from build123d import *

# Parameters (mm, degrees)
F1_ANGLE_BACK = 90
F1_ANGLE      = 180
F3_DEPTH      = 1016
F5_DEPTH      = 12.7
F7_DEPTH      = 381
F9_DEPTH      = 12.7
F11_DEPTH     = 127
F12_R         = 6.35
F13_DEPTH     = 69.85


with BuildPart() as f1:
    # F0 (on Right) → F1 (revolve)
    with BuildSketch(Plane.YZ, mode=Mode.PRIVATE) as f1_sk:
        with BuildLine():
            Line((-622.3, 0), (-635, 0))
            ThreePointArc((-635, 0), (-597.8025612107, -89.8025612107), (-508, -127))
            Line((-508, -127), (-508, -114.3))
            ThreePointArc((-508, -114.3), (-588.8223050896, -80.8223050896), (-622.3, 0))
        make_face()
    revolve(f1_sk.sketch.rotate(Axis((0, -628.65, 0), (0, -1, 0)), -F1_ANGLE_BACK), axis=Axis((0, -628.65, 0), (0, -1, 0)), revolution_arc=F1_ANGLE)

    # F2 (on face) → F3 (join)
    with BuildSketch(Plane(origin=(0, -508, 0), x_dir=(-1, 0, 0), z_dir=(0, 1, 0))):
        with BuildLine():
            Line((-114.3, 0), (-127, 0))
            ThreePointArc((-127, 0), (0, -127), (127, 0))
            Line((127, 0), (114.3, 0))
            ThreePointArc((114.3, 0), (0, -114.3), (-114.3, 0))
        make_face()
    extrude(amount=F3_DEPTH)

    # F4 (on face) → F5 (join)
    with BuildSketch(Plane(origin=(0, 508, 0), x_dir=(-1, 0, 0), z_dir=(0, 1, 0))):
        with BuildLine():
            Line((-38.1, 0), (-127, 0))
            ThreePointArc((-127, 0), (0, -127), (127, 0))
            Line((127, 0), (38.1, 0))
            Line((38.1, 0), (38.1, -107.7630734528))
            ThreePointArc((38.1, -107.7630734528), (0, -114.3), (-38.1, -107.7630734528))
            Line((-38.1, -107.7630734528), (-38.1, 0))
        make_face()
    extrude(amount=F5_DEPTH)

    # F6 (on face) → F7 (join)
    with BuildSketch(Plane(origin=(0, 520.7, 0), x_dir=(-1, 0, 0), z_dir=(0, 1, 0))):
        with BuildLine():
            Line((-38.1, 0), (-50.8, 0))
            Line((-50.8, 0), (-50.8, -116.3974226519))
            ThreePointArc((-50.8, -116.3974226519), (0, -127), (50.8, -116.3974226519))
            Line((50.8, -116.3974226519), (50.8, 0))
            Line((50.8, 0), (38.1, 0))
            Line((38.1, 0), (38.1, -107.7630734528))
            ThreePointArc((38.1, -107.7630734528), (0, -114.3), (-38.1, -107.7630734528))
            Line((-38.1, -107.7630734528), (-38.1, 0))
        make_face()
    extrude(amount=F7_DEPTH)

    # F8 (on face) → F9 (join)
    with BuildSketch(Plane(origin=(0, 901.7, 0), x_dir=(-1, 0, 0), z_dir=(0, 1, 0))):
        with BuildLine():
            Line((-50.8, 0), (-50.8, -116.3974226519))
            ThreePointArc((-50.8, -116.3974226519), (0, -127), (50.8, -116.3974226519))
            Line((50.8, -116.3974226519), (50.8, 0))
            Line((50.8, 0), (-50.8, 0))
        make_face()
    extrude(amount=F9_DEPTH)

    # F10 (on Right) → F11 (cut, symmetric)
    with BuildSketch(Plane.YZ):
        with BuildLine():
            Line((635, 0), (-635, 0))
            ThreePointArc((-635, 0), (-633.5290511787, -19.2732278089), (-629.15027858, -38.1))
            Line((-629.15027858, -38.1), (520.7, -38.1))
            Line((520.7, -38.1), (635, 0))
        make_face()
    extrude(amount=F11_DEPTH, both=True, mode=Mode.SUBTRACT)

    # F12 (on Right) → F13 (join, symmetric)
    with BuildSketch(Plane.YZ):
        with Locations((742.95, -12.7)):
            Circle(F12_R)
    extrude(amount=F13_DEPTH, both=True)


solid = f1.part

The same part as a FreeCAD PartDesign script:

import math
import FreeCAD as App
import Part
import Sketcher

V = App.Vector
Q = App.Units.Quantity

doc = App.newDocument("Part")
body = doc.addObject("PartDesign::Body", "Body")

sketch1 = doc.addObject("Sketcher::SketchObject", "Sketch")
body.addObject(sketch1)
sketch1.AttachmentSupport = (doc.XY_Plane, [""])
sketch1.MapMode = "FlatFace"
sketch1.addGeometry([
    Part.LineSegment(V(0, -622, 0), V(0, -635, 0)),
    Part.ArcOfCircle(Part.Circle(V(0, -508, 0), V(0, 0, 1), 127), math.radians(180), math.radians(270)),
    Part.LineSegment(V(-127, -508, 0), V(-114, -508, 0)),
    Part.ArcOfCircle(Part.Circle(V(0, -508, 0), V(0, 0, 1), 114), math.radians(180), math.radians(270)),
], False)
sketch1.addConstraint([
    Sketcher.Constraint("Coincident", 0, 2, 1, 2),
    Sketcher.Constraint("Coincident", 1, 1, 2, 1),
    Sketcher.Constraint("Coincident", 2, 2, 3, 1),
    Sketcher.Constraint("Coincident", 3, 2, 0, 1),
    Sketcher.Constraint("Vertical", 0),
    Sketcher.Constraint("Horizontal", 2),
    Sketcher.Constraint("Coincident", 3, 3, 1, 3),
    Sketcher.Constraint("PointOnObject", 1, 3, -2),
    Sketcher.Constraint("PointOnObject", 0, 2, -2),
    Sketcher.Constraint("Horizontal", 3, 3, 1, 1),
    Sketcher.Constraint("Radius", 1, Q("5 in")),
    Sketcher.Constraint("Radius", 3, Q("4.5 in")),
    Sketcher.Constraint("DistanceY", 1, 3, -1, 1, Q("20 in")),
])
revolution = doc.addObject("PartDesign::Revolution", "Revolution")
body.addObject(revolution)
revolution.Profile = sketch1
revolution.ReferenceAxis = (sketch1, ["V_Axis"])
revolution.Angle = 180
revolution.Reversed = True

sketch2 = doc.addObject("Sketcher::SketchObject", "Sketch001")
body.addObject(sketch2)
sketch2.AttachmentSupport = (doc.XZ_Plane, [""])
sketch2.MapMode = "FlatFace"
sketch2.AttachmentOffset = App.Placement(V(0, 0, 20 * 25.4), App.Rotation())
sketch2.addGeometry([
    Part.LineSegment(V(114, 0, 0), V(127, 0, 0)),
    Part.ArcOfCircle(Part.Circle(V(0, 0, 0), V(0, 0, 1), 127), math.radians(180), math.radians(360)),
    Part.LineSegment(V(-127, 0, 0), V(-114, 0, 0)),
    Part.ArcOfCircle(Part.Circle(V(0, 0, 0), V(0, 0, 1), 114), math.radians(180), math.radians(360)),
], False)
sketch2.addConstraint([
    Sketcher.Constraint("Coincident", 0, 2, 1, 2),
    Sketcher.Constraint("Coincident", 1, 1, 2, 1),
    Sketcher.Constraint("Coincident", 2, 2, 3, 1),
    Sketcher.Constraint("Coincident", 3, 2, 0, 1),
    Sketcher.Constraint("Horizontal", 0),
    Sketcher.Constraint("Horizontal", 2),
    Sketcher.Constraint("Coincident", 1, 3, -1, 1),
    Sketcher.Constraint("Coincident", 3, 3, -1, 1),
    Sketcher.Constraint("PointOnObject", 0, 2, -1),
    Sketcher.Constraint("PointOnObject", 1, 1, -1),
    Sketcher.Constraint("Radius", 1, Q("5 in")),
    Sketcher.Constraint("Radius", 3, Q("4.5 in")),
])
pad1 = doc.addObject("PartDesign::Pad", "Pad")
body.addObject(pad1)
pad1.Profile = sketch2
pad1.Length = Q("40 in")
pad1.Reversed = True

sketch3 = doc.addObject("Sketcher::SketchObject", "Sketch002")
body.addObject(sketch3)
sketch3.AttachmentSupport = (doc.XZ_Plane, [""])
sketch3.MapMode = "FlatFace"
sketch3.AttachmentOffset = App.Placement(V(0, 0, -20 * 25.4), App.Rotation())
sketch3.addGeometry([
    Part.LineSegment(V(38, 0, 0), V(127, 0, 0)),
    Part.ArcOfCircle(Part.Circle(V(0, 0, 0), V(0, 0, 1), 127), math.radians(180), math.radians(360)),
    Part.LineSegment(V(-127, 0, 0), V(-38, 0, 0)),
    Part.LineSegment(V(-38, 0, 0), V(-38, -108, 0)),
    Part.ArcOfCircle(Part.Circle(V(0, 0, 0), V(0, 0, 1), 114), math.radians(-109), math.radians(-71)),
    Part.LineSegment(V(38, -108, 0), V(38, 0, 0)),
], False)
sketch3.addConstraint([
    Sketcher.Constraint("Coincident", 0, 2, 1, 2),
    Sketcher.Constraint("Coincident", 1, 1, 2, 1),
    Sketcher.Constraint("Coincident", 2, 2, 3, 1),
    Sketcher.Constraint("Coincident", 3, 2, 4, 1),
    Sketcher.Constraint("Coincident", 4, 2, 5, 1),
    Sketcher.Constraint("Coincident", 5, 2, 0, 1),
    Sketcher.Constraint("Horizontal", 0),
    Sketcher.Constraint("Horizontal", 2),
    Sketcher.Constraint("Vertical", 3),
    Sketcher.Constraint("Vertical", 5),
    Sketcher.Constraint("Coincident", 1, 3, -1, 1),
    Sketcher.Constraint("Coincident", 4, 3, -1, 1),
    Sketcher.Constraint("Symmetric", 2, 2, 5, 2, -1, 1),
    Sketcher.Constraint("PointOnObject", 0, 2, -1),
    Sketcher.Constraint("Radius", 1, Q("5 in")),
    Sketcher.Constraint("Radius", 4, Q("4.5 in")),
    Sketcher.Constraint("DistanceX", 0, 1, 0, 2, Q("3.5 in")),
])
pad2 = doc.addObject("PartDesign::Pad", "Pad001")
body.addObject(pad2)
pad2.Profile = sketch3
pad2.Length = Q("0.5 in")
pad2.Reversed = True

sketch4 = doc.addObject("Sketcher::SketchObject", "Sketch003")
body.addObject(sketch4)
sketch4.AttachmentSupport = (doc.XZ_Plane, [""])
sketch4.MapMode = "FlatFace"
sketch4.AttachmentOffset = App.Placement(V(0, 0, -20.5 * 25.4), App.Rotation())
sketch4.addGeometry([
    Part.LineSegment(V(38, 0, 0), V(51, 0, 0)),
    Part.LineSegment(V(51, 0, 0), V(51, -116, 0)),
    Part.ArcOfCircle(Part.Circle(V(0, 0, 0), V(0, 0, 1), 127), math.radians(-114), math.radians(-66)),
    Part.LineSegment(V(-51, -116, 0), V(-51, 0, 0)),
    Part.LineSegment(V(-51, 0, 0), V(-38, 0, 0)),
    Part.LineSegment(V(-38, 0, 0), V(-38, -108, 0)),
    Part.ArcOfCircle(Part.Circle(V(0, 0, 0), V(0, 0, 1), 114), math.radians(-109), math.radians(-71)),
    Part.LineSegment(V(38, -108, 0), V(38, 0, 0)),
], False)
sketch4.addConstraint([
    Sketcher.Constraint("Coincident", 0, 2, 1, 1),
    Sketcher.Constraint("Coincident", 1, 2, 2, 2),
    Sketcher.Constraint("Coincident", 2, 1, 3, 1),
    Sketcher.Constraint("Coincident", 3, 2, 4, 1),
    Sketcher.Constraint("Coincident", 4, 2, 5, 1),
    Sketcher.Constraint("Coincident", 5, 2, 6, 1),
    Sketcher.Constraint("Coincident", 6, 2, 7, 1),
    Sketcher.Constraint("Coincident", 7, 2, 0, 1),
    Sketcher.Constraint("Horizontal", 0),
    Sketcher.Constraint("Vertical", 1),
    Sketcher.Constraint("Vertical", 3),
    Sketcher.Constraint("Horizontal", 4),
    Sketcher.Constraint("Vertical", 5),
    Sketcher.Constraint("Vertical", 7),
    Sketcher.Constraint("Coincident", 2, 3, -1, 1),
    Sketcher.Constraint("Coincident", 6, 3, -1, 1),
    Sketcher.Constraint("Symmetric", 0, 2, 3, 2, -1, 1),
    Sketcher.Constraint("Symmetric", 4, 2, 7, 2, -2),
    Sketcher.Constraint("Radius", 2, Q("5 in")),
    Sketcher.Constraint("Radius", 6, Q("4.5 in")),
    Sketcher.Constraint("DistanceX", 0, 1, 0, 2, Q("0.5 in")),
    Sketcher.Constraint("DistanceX", -1, 1, 0, 2, Q("2 in")),
])
pad3 = doc.addObject("PartDesign::Pad", "Pad002")
body.addObject(pad3)
pad3.Profile = sketch4
pad3.Length = Q("15 in")
pad3.Reversed = True

sketch5 = doc.addObject("Sketcher::SketchObject", "Sketch004")
body.addObject(sketch5)
sketch5.AttachmentSupport = (doc.XZ_Plane, [""])
sketch5.MapMode = "FlatFace"
sketch5.AttachmentOffset = App.Placement(V(0, 0, -35.5 * 25.4), App.Rotation())
sketch5.addGeometry([
    Part.LineSegment(V(51, 0, 0), V(51, -116, 0)),
    Part.ArcOfCircle(Part.Circle(V(0, 0, 0), V(0, 0, 1), 127), math.radians(-114), math.radians(-66)),
    Part.LineSegment(V(-51, -116, 0), V(-51, 0, 0)),
    Part.LineSegment(V(-51, 0, 0), V(51, 0, 0)),
], False)
sketch5.addConstraint([
    Sketcher.Constraint("Coincident", 0, 2, 1, 2),
    Sketcher.Constraint("Coincident", 1, 1, 2, 1),
    Sketcher.Constraint("Coincident", 2, 2, 3, 1),
    Sketcher.Constraint("Coincident", 3, 2, 0, 1),
    Sketcher.Constraint("Vertical", 0),
    Sketcher.Constraint("Vertical", 2),
    Sketcher.Constraint("Horizontal", 3),
    Sketcher.Constraint("Coincident", 1, 3, -1, 1),
    Sketcher.Constraint("Symmetric", 2, 2, 3, 2, -1, 1),
    Sketcher.Constraint("Radius", 1, Q("5 in")),
    Sketcher.Constraint("DistanceX", 3, 1, 3, 2, Q("4 in")),
])
pad4 = doc.addObject("PartDesign::Pad", "Pad003")
body.addObject(pad4)
pad4.Profile = sketch5
pad4.Length = Q("0.5 in")
pad4.Reversed = True

sketch6 = doc.addObject("Sketcher::SketchObject", "Sketch005")
body.addObject(sketch6)
sketch6.AttachmentSupport = (doc.YZ_Plane, [""])
sketch6.MapMode = "FlatFace"
sketch6.addGeometry([
    Part.LineSegment(V(635, 0, 0), V(-635, 0, 0)),
    Part.ArcOfCircle(Part.Circle(V(-508, 0, 0), V(0, 0, 1), 127), math.radians(180), math.radians(197.46)),
    Part.LineSegment(V(-629, -38, 0), V(521, -38, 0)),
    Part.LineSegment(V(521, -38, 0), V(635, 0, 0)),
], False)
sketch6.addConstraint([
    Sketcher.Constraint("Coincident", 0, 2, 1, 1),
    Sketcher.Constraint("Coincident", 1, 2, 2, 1),
    Sketcher.Constraint("Coincident", 2, 2, 3, 1),
    Sketcher.Constraint("Coincident", 3, 2, 0, 1),
    Sketcher.Constraint("Horizontal", 0),
    Sketcher.Constraint("Horizontal", 2),
    Sketcher.Constraint("Symmetric", 0, 2, 3, 2, -1, 1),
    Sketcher.Constraint("PointOnObject", 1, 3, -1),
    Sketcher.Constraint("Radius", 1, Q("5 in")),
    Sketcher.Constraint("DistanceX", 0, 2, 0, 1, Q("50 in")),
    Sketcher.Constraint("DistanceY", 1, 2, -1, 1, Q("1.5 in")),
    Sketcher.Constraint("DistanceX", -1, 1, 2, 2, Q("20.5 in")),
])
pocket1 = doc.addObject("PartDesign::Pocket", "Pocket")
body.addObject(pocket1)
pocket1.Profile = sketch6
pocket1.Length = Q("10 in")
pocket1.Midplane = True

sketch7 = doc.addObject("Sketcher::SketchObject", "Sketch006")
body.addObject(sketch7)
sketch7.AttachmentSupport = (doc.YZ_Plane, [""])
sketch7.MapMode = "FlatFace"
sketch7.addGeometry(Part.Circle(V(743, -13, 0), V(0, 0, 1), 6), False)
sketch7.addConstraint([
    Sketcher.Constraint("Diameter", 0, Q("0.5 in")),
    Sketcher.Constraint("DistanceY", 0, 3, -1, 1, Q("0.5 in")),
    Sketcher.Constraint("DistanceX", -1, 1, 0, 3, Q("29.25 in")),
])
pad5 = doc.addObject("PartDesign::Pad", "Pad004")
body.addObject(pad5)
pad5.Profile = sketch7
pad5.Length = Q("5.5 in")
pad5.Midplane = True

doc.recompute()
